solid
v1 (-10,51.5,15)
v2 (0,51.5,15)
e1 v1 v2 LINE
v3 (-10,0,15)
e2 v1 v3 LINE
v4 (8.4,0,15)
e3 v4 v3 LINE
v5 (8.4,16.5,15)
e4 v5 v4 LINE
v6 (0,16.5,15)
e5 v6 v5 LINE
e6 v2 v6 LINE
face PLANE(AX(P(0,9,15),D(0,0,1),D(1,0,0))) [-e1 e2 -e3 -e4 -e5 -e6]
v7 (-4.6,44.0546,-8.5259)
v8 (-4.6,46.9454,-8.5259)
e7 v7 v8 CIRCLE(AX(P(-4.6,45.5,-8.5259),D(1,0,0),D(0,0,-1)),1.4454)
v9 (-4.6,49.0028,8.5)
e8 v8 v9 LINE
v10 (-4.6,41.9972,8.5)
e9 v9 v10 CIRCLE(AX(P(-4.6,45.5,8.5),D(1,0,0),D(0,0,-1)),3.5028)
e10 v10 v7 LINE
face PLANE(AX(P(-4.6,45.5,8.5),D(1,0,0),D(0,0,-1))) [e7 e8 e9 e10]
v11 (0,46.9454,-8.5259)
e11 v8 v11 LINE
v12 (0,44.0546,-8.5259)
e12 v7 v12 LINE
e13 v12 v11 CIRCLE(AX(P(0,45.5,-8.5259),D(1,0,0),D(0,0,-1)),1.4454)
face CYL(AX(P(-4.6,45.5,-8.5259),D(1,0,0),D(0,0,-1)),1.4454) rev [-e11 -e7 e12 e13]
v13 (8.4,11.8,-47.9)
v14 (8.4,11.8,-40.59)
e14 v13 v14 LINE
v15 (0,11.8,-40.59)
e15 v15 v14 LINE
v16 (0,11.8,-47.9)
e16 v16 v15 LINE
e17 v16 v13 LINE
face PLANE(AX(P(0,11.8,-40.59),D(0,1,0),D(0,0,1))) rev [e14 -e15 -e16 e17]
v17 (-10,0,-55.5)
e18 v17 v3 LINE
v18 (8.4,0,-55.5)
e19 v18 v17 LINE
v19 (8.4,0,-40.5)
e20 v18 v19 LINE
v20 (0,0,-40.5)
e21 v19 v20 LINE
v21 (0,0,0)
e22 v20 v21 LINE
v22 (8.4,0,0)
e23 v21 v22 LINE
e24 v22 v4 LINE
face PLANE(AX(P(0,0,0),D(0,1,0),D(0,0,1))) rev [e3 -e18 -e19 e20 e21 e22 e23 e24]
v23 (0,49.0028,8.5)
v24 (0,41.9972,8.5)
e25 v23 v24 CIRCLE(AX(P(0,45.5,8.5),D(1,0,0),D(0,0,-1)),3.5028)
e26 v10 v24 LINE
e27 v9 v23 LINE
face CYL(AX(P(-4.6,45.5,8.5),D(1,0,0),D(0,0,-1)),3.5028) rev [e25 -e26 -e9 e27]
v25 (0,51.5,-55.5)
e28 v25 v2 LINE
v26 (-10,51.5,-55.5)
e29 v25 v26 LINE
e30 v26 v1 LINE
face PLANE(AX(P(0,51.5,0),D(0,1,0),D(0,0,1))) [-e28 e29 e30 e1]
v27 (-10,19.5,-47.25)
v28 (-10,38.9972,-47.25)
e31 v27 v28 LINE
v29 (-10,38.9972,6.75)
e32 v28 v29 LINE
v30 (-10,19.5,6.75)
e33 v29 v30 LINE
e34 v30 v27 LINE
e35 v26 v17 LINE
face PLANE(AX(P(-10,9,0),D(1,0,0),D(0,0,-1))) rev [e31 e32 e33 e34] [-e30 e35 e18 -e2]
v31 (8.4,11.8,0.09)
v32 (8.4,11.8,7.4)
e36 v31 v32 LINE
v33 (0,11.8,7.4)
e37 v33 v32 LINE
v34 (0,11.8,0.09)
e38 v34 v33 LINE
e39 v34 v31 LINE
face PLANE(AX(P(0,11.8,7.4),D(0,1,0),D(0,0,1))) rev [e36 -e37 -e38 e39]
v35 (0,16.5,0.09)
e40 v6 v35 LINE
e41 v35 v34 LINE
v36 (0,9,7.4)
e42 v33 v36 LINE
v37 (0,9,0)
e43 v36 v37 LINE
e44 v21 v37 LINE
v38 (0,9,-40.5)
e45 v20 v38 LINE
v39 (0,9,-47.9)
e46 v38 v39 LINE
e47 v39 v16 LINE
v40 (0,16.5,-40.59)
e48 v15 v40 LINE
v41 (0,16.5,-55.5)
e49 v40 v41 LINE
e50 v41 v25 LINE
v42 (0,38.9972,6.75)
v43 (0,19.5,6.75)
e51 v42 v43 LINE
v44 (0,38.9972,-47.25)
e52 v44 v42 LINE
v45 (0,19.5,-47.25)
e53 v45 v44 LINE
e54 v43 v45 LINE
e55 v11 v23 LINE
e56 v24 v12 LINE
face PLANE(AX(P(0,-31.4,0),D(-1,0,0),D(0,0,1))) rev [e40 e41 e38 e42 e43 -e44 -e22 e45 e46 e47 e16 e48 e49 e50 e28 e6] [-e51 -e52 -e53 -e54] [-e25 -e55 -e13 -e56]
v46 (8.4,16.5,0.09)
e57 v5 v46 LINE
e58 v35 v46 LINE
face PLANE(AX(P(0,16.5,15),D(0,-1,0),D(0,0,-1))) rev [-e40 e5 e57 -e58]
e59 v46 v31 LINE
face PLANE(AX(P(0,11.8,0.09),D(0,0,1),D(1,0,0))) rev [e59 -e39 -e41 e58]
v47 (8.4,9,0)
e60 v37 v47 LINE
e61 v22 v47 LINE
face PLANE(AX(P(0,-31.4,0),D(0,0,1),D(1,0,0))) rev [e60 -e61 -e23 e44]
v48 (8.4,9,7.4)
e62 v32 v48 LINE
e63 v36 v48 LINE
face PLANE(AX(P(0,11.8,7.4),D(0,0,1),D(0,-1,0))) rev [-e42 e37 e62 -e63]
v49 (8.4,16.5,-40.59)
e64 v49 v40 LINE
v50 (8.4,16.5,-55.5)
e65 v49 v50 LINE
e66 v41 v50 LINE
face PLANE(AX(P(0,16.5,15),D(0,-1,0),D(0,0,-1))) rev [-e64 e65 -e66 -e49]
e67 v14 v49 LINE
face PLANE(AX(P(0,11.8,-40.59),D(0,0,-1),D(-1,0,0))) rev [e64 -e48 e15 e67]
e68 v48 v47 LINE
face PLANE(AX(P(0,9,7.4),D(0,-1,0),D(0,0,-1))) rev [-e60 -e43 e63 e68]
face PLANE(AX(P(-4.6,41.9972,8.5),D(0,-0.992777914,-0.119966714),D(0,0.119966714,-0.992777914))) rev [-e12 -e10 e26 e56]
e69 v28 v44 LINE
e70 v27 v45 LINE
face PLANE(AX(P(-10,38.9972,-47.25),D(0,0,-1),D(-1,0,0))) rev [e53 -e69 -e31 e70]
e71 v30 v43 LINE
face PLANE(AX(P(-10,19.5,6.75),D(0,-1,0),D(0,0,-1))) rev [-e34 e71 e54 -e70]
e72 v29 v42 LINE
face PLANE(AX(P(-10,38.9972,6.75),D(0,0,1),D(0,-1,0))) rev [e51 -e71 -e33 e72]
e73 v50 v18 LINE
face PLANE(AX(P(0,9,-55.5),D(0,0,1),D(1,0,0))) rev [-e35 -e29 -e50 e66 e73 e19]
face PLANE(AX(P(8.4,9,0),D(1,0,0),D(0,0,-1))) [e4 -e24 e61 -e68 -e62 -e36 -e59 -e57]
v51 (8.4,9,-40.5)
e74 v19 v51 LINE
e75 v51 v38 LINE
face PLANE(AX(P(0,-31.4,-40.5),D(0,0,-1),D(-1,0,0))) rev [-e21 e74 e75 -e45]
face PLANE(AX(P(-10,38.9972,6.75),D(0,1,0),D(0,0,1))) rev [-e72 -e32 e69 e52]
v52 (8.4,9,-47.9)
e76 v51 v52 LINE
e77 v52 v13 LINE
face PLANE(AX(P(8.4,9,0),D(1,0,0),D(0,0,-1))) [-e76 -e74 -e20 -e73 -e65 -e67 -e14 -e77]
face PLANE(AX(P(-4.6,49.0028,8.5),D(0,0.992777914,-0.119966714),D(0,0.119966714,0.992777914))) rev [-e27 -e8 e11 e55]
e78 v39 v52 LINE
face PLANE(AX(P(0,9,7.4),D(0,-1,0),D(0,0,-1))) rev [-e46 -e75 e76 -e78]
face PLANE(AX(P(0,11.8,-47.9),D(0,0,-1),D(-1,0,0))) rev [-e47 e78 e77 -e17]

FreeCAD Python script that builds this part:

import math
import FreeCAD as App
import Part
import Sketcher
from FreeCAD import Vector
Q = App.Units.Quantity


def add_polygon(sketch, points):
    """Adds a closed chain of lines whose ends are joined by coincident constraints."""
    first, n = sketch.GeometryCount, len(points)
    for a, b in zip(points, points[1:] + points[:1]):
        sketch.addGeometry(Part.LineSegment(App.Vector(*a, 0), App.Vector(*b, 0)), False)
    for i in range(n):
        sketch.addConstraint(Sketcher.Constraint("Coincident", first + i, 2, first + (i + 1) % n, 1))

doc = App.newDocument("Part")
body = doc.addObject("PartDesign::Body", "Body")

sketch1 = body.newObject("Sketcher::SketchObject", "Sketch")
sketch1.AttachmentSupport = (doc.getObject("XZ_Plane"), [""])
sketch1.MapMode = "FlatFace"
add_polygon(sketch1, [(8, 15), (8, -56), (-10, -56), (-10, 15)])
sketch1.addConstraint([
    Sketcher.Constraint("Vertical", 0),
    Sketcher.Constraint("Horizontal", 1),
    Sketcher.Constraint("Vertical", 2),
    Sketcher.Constraint("Horizontal", 3),
    Sketcher.Constraint("DistanceX", 1, 2, 1, 1, Q("18.4 mm")),
    Sketcher.Constraint("DistanceY", 0, 2, 0, 1, Q("70.5 mm")),
    Sketcher.Constraint("DistanceX", 1, 2, -1, 1, Q("10 mm")),
    Sketcher.Constraint("DistanceY", -1, 1, 2, 2, Q("15 mm")),
])
pad1 = body.newObject("PartDesign::Pad", "Pad")
pad1.Profile = sketch1
pad1.Length = 9
pad1.Reversed = True

sketch2 = body.newObject("Sketcher::SketchObject", "Sketch001")
sketch2.AttachmentSupport = (doc.getObject("XZ_Plane"), [""])
sketch2.MapMode = "FlatFace"
sketch2.AttachmentOffset = App.Placement(Vector(0, 0, -9), App.Rotation())
add_polygon(sketch2, [(0, -40), (0, 0), (8, 0), (8, -40)])
sketch2.addConstraint([
    Sketcher.Constraint("Vertical", 0),
    Sketcher.Constraint("Horizontal", 1),
    Sketcher.Constraint("Vertical", 2),
    Sketcher.Constraint("Horizontal", 3),
    Sketcher.Constraint("Coincident", 0, 2, -1, 1),
    Sketcher.Constraint("DistanceX", 1, 1, 1, 2, Q("8.4 mm")),
    Sketcher.Constraint("DistanceY", 0, 1, 0, 2, Q("40.5 mm")),
])
pocket1 = body.newObject("PartDesign::Pocket", "Pocket")
pocket1.Profile = sketch2
pocket1.Length = 40.4
pocket1.Reversed = True

sketch3 = body.newObject("Sketcher::SketchObject", "Sketch002")
sketch3.AttachmentSupport = (doc.getObject("XZ_Plane"), [""])
sketch3.MapMode = "FlatFace"
sketch3.AttachmentOffset = App.Placement(Vector(0, 0, -9), App.Rotation())
add_polygon(sketch3, [(-10, -56), (-10, 15), (8, 15), (8, -56)])
sketch3.addConstraint([
    Sketcher.Constraint("Vertical", 0),
    Sketcher.Constraint("Horizontal", 1),
    Sketcher.Constraint("Vertical", 2),
    Sketcher.Constraint("Horizontal", 3),
    Sketcher.Constraint("DistanceX", 1, 1, 1, 2, Q("18.4 mm")),
    Sketcher.Constraint("DistanceY", 0, 1, 0, 2, Q("70.5 mm")),
    Sketcher.Constraint("DistanceX", 0, 2, -1, 1, Q("10 mm")),
    Sketcher.Constraint("DistanceY", -1, 1, 0, 2, Q("15 mm")),
])
pad2 = body.newObject("PartDesign::Pad", "Pad001")
pad2.Profile = sketch3
pad2.Length = 42.5
pad2.Reversed = True

sketch4 = body.newObject("Sketcher::SketchObject", "Sketch003")
sketch4.AttachmentSupport = (doc.getObject("YZ_Plane"), [""])
sketch4.MapMode = "FlatFace"
sketch4.AttachmentOffset = App.Placement(Vector(0, 0, 8.4), App.Rotation())
add_polygon(sketch4, [(44.4, 0.1), (11.8, 0.1), (11.8, 7.4), (9, 7.4), (9, -47.9), (11.8, -47.9), (11.8, -40.6), (44.4, -40.6)])
sketch4.addConstraint([
    Sketcher.Constraint("Horizontal", 0),
    Sketcher.Constraint("Vertical", 1),
    Sketcher.Constraint("Horizontal", 2),
    Sketcher.Constraint("Vertical", 3),
    Sketcher.Constraint("Horizontal", 4),
    Sketcher.Constraint("Vertical", 5),
    Sketcher.Constraint("Horizontal", 6),
    Sketcher.Constraint("Vertical", 7),
    Sketcher.Constraint("Vertical", 1, 2, 4, 2),
    Sketcher.Constraint("Equal", 1, 5),
    Sketcher.Constraint("DistanceX", 0, 2, 0, 1, Q("32.6 mm")),
    Sketcher.Constraint("DistanceX", 2, 2, 2, 1, Q("2.8 mm")),
    Sketcher.Constraint("DistanceY", 3, 2, 3, 1, Q("55.3 mm")),
    Sketcher.Constraint("DistanceX", -1, 1, 2, 2, Q("9 mm")),
    Sketcher.Constraint("DistanceY", 1, 1, 1, 2, Q("7.31 mm")),
    Sketcher.Constraint("DistanceY", -1, 1, 1, 2, Q("7.4 mm")),
])
pocket2 = body.newObject("PartDesign::Pocket", "Pocket001")
pocket2.Profile = sketch4
pocket2.Length = 8.4

sketch5 = body.newObject("Sketcher::SketchObject", "Sketch004")
sketch5.AttachmentSupport = (doc.getObject("YZ_Plane"), [""])
sketch5.MapMode = "FlatFace"
sketch5.AttachmentOffset = App.Placement(Vector(0, 0, 8.4), App.Rotation())
add_polygon(sketch5, [(52, 15), (16, 15), (16, -56), (52, -56)])
sketch5.addConstraint([
    Sketcher.Constraint("Horizontal", 0),
    Sketcher.Constraint("Vertical", 1),
    Sketcher.Constraint("Horizontal", 2),
    Sketcher.Constraint("Vertical", 3),
    Sketcher.Constraint("DistanceX", 0, 2, 0, 1, Q("35 mm")),
    Sketcher.Constraint("DistanceY", 1, 2, 1, 1, Q("70.5 mm")),
    Sketcher.Constraint("DistanceY", -1, 1, 0, 2, Q("15 mm")),
    Sketcher.Constraint("DistanceX", -1, 1, 0, 2, Q("16.5 mm")),
])
pocket3 = body.newObject("PartDesign::Pocket", "Pocket002")
pocket3.Profile = sketch5
pocket3.Length = 8.4

sketch6 = body.newObject("Sketcher::SketchObject", "Sketch005")
sketch6.AttachmentSupport = (doc.getObject("YZ_Plane"), [""])
sketch6.MapMode = "FlatFace"
sketch6.addGeometry([
    Part.LineSegment(Vector(46.9, -8.5, 0), Vector(49, 8.5, 0)),
    Part.ArcOfCircle(Part.Circle(Vector(45.5, 8.5, 0), Vector(0, 0, 1), 3.5), math.radians(0), math.radians(180)),
    Part.LineSegment(Vector(42, 8.5, 0), Vector(44.1, -8.5, 0)),
    Part.ArcOfCircle(Part.Circle(Vector(45.5, -8.5, 0), Vector(0, 0, 1), 1.4), math.radians(180), math.radians(360)),
], False)
sketch6.addConstraint([
    Sketcher.Constraint("Coincident", 0, 2, 1, 1),
    Sketcher.Constraint("Coincident", 1, 2, 2, 1),
    Sketcher.Constraint("Coincident", 2, 2, 3, 1),
    Sketcher.Constraint("Coincident", 3, 2, 0, 1),
    Sketcher.Constraint("Horizontal", 1, 3, 0, 2),
    Sketcher.Constraint("Horizontal", 0, 2, 1, 2),
    Sketcher.Constraint("Horizontal", 3, 3, 2, 2),
    Sketcher.Constraint("Horizontal", 2, 2, 3, 2),
    Sketcher.Constraint("Vertical", 1, 3, 3, 3),
    Sketcher.Constraint("DistanceX", -1, 1, 1, 3, Q("45.5 mm")),
    Sketcher.Constraint("DistanceY", -1, 1, 1, 3, Q("8.5 mm")),
    Sketcher.Constraint("Radius", 1, Q("3.5028 mm")),
    Sketcher.Constraint("Radius", 3, Q("1.4454 mm")),
    Sketcher.Constraint("DistanceY", 3, 3, -1, 1, Q("8.5259 mm")),
])
pocket4 = body.newObject("PartDesign::Pocket", "Pocket003")
pocket4.Profile = sketch6
pocket4.Length = 4.6

sketch7 = body.newObject("Sketcher::SketchObject", "Sketch006")
sketch7.AttachmentSupport = (doc.getObject("YZ_Plane"), [""])
sketch7.MapMode = "FlatFace"
add_polygon(sketch7, [(39, 7), (20, 7), (20, -47), (39, -47)])
sketch7.addConstraint([
    Sketcher.Constraint("Horizontal", 0),
    Sketcher.Constraint("Vertical", 1),
    Sketcher.Constraint("Horizontal", 2),
    Sketcher.Constraint("Vertical", 3),
    Sketcher.Constraint("DistanceY", 1, 2, 1, 1, Q("54 mm")),
    Sketcher.Constraint("DistanceX", -1, 1, 0, 2, Q("19.5 mm")),
    Sketcher.Constraint("DistanceY", -1, 1, 0, 2, Q("6.75 mm")),
    Sketcher.Constraint("DistanceX", 0, 2, 0, 1, Q("19.4972 mm")),
])
pocket5 = body.newObject("PartDesign::Pocket", "Pocket004")
pocket5.Profile = sketch7
pocket5.Type = "ThroughAll"

doc.recompute()
